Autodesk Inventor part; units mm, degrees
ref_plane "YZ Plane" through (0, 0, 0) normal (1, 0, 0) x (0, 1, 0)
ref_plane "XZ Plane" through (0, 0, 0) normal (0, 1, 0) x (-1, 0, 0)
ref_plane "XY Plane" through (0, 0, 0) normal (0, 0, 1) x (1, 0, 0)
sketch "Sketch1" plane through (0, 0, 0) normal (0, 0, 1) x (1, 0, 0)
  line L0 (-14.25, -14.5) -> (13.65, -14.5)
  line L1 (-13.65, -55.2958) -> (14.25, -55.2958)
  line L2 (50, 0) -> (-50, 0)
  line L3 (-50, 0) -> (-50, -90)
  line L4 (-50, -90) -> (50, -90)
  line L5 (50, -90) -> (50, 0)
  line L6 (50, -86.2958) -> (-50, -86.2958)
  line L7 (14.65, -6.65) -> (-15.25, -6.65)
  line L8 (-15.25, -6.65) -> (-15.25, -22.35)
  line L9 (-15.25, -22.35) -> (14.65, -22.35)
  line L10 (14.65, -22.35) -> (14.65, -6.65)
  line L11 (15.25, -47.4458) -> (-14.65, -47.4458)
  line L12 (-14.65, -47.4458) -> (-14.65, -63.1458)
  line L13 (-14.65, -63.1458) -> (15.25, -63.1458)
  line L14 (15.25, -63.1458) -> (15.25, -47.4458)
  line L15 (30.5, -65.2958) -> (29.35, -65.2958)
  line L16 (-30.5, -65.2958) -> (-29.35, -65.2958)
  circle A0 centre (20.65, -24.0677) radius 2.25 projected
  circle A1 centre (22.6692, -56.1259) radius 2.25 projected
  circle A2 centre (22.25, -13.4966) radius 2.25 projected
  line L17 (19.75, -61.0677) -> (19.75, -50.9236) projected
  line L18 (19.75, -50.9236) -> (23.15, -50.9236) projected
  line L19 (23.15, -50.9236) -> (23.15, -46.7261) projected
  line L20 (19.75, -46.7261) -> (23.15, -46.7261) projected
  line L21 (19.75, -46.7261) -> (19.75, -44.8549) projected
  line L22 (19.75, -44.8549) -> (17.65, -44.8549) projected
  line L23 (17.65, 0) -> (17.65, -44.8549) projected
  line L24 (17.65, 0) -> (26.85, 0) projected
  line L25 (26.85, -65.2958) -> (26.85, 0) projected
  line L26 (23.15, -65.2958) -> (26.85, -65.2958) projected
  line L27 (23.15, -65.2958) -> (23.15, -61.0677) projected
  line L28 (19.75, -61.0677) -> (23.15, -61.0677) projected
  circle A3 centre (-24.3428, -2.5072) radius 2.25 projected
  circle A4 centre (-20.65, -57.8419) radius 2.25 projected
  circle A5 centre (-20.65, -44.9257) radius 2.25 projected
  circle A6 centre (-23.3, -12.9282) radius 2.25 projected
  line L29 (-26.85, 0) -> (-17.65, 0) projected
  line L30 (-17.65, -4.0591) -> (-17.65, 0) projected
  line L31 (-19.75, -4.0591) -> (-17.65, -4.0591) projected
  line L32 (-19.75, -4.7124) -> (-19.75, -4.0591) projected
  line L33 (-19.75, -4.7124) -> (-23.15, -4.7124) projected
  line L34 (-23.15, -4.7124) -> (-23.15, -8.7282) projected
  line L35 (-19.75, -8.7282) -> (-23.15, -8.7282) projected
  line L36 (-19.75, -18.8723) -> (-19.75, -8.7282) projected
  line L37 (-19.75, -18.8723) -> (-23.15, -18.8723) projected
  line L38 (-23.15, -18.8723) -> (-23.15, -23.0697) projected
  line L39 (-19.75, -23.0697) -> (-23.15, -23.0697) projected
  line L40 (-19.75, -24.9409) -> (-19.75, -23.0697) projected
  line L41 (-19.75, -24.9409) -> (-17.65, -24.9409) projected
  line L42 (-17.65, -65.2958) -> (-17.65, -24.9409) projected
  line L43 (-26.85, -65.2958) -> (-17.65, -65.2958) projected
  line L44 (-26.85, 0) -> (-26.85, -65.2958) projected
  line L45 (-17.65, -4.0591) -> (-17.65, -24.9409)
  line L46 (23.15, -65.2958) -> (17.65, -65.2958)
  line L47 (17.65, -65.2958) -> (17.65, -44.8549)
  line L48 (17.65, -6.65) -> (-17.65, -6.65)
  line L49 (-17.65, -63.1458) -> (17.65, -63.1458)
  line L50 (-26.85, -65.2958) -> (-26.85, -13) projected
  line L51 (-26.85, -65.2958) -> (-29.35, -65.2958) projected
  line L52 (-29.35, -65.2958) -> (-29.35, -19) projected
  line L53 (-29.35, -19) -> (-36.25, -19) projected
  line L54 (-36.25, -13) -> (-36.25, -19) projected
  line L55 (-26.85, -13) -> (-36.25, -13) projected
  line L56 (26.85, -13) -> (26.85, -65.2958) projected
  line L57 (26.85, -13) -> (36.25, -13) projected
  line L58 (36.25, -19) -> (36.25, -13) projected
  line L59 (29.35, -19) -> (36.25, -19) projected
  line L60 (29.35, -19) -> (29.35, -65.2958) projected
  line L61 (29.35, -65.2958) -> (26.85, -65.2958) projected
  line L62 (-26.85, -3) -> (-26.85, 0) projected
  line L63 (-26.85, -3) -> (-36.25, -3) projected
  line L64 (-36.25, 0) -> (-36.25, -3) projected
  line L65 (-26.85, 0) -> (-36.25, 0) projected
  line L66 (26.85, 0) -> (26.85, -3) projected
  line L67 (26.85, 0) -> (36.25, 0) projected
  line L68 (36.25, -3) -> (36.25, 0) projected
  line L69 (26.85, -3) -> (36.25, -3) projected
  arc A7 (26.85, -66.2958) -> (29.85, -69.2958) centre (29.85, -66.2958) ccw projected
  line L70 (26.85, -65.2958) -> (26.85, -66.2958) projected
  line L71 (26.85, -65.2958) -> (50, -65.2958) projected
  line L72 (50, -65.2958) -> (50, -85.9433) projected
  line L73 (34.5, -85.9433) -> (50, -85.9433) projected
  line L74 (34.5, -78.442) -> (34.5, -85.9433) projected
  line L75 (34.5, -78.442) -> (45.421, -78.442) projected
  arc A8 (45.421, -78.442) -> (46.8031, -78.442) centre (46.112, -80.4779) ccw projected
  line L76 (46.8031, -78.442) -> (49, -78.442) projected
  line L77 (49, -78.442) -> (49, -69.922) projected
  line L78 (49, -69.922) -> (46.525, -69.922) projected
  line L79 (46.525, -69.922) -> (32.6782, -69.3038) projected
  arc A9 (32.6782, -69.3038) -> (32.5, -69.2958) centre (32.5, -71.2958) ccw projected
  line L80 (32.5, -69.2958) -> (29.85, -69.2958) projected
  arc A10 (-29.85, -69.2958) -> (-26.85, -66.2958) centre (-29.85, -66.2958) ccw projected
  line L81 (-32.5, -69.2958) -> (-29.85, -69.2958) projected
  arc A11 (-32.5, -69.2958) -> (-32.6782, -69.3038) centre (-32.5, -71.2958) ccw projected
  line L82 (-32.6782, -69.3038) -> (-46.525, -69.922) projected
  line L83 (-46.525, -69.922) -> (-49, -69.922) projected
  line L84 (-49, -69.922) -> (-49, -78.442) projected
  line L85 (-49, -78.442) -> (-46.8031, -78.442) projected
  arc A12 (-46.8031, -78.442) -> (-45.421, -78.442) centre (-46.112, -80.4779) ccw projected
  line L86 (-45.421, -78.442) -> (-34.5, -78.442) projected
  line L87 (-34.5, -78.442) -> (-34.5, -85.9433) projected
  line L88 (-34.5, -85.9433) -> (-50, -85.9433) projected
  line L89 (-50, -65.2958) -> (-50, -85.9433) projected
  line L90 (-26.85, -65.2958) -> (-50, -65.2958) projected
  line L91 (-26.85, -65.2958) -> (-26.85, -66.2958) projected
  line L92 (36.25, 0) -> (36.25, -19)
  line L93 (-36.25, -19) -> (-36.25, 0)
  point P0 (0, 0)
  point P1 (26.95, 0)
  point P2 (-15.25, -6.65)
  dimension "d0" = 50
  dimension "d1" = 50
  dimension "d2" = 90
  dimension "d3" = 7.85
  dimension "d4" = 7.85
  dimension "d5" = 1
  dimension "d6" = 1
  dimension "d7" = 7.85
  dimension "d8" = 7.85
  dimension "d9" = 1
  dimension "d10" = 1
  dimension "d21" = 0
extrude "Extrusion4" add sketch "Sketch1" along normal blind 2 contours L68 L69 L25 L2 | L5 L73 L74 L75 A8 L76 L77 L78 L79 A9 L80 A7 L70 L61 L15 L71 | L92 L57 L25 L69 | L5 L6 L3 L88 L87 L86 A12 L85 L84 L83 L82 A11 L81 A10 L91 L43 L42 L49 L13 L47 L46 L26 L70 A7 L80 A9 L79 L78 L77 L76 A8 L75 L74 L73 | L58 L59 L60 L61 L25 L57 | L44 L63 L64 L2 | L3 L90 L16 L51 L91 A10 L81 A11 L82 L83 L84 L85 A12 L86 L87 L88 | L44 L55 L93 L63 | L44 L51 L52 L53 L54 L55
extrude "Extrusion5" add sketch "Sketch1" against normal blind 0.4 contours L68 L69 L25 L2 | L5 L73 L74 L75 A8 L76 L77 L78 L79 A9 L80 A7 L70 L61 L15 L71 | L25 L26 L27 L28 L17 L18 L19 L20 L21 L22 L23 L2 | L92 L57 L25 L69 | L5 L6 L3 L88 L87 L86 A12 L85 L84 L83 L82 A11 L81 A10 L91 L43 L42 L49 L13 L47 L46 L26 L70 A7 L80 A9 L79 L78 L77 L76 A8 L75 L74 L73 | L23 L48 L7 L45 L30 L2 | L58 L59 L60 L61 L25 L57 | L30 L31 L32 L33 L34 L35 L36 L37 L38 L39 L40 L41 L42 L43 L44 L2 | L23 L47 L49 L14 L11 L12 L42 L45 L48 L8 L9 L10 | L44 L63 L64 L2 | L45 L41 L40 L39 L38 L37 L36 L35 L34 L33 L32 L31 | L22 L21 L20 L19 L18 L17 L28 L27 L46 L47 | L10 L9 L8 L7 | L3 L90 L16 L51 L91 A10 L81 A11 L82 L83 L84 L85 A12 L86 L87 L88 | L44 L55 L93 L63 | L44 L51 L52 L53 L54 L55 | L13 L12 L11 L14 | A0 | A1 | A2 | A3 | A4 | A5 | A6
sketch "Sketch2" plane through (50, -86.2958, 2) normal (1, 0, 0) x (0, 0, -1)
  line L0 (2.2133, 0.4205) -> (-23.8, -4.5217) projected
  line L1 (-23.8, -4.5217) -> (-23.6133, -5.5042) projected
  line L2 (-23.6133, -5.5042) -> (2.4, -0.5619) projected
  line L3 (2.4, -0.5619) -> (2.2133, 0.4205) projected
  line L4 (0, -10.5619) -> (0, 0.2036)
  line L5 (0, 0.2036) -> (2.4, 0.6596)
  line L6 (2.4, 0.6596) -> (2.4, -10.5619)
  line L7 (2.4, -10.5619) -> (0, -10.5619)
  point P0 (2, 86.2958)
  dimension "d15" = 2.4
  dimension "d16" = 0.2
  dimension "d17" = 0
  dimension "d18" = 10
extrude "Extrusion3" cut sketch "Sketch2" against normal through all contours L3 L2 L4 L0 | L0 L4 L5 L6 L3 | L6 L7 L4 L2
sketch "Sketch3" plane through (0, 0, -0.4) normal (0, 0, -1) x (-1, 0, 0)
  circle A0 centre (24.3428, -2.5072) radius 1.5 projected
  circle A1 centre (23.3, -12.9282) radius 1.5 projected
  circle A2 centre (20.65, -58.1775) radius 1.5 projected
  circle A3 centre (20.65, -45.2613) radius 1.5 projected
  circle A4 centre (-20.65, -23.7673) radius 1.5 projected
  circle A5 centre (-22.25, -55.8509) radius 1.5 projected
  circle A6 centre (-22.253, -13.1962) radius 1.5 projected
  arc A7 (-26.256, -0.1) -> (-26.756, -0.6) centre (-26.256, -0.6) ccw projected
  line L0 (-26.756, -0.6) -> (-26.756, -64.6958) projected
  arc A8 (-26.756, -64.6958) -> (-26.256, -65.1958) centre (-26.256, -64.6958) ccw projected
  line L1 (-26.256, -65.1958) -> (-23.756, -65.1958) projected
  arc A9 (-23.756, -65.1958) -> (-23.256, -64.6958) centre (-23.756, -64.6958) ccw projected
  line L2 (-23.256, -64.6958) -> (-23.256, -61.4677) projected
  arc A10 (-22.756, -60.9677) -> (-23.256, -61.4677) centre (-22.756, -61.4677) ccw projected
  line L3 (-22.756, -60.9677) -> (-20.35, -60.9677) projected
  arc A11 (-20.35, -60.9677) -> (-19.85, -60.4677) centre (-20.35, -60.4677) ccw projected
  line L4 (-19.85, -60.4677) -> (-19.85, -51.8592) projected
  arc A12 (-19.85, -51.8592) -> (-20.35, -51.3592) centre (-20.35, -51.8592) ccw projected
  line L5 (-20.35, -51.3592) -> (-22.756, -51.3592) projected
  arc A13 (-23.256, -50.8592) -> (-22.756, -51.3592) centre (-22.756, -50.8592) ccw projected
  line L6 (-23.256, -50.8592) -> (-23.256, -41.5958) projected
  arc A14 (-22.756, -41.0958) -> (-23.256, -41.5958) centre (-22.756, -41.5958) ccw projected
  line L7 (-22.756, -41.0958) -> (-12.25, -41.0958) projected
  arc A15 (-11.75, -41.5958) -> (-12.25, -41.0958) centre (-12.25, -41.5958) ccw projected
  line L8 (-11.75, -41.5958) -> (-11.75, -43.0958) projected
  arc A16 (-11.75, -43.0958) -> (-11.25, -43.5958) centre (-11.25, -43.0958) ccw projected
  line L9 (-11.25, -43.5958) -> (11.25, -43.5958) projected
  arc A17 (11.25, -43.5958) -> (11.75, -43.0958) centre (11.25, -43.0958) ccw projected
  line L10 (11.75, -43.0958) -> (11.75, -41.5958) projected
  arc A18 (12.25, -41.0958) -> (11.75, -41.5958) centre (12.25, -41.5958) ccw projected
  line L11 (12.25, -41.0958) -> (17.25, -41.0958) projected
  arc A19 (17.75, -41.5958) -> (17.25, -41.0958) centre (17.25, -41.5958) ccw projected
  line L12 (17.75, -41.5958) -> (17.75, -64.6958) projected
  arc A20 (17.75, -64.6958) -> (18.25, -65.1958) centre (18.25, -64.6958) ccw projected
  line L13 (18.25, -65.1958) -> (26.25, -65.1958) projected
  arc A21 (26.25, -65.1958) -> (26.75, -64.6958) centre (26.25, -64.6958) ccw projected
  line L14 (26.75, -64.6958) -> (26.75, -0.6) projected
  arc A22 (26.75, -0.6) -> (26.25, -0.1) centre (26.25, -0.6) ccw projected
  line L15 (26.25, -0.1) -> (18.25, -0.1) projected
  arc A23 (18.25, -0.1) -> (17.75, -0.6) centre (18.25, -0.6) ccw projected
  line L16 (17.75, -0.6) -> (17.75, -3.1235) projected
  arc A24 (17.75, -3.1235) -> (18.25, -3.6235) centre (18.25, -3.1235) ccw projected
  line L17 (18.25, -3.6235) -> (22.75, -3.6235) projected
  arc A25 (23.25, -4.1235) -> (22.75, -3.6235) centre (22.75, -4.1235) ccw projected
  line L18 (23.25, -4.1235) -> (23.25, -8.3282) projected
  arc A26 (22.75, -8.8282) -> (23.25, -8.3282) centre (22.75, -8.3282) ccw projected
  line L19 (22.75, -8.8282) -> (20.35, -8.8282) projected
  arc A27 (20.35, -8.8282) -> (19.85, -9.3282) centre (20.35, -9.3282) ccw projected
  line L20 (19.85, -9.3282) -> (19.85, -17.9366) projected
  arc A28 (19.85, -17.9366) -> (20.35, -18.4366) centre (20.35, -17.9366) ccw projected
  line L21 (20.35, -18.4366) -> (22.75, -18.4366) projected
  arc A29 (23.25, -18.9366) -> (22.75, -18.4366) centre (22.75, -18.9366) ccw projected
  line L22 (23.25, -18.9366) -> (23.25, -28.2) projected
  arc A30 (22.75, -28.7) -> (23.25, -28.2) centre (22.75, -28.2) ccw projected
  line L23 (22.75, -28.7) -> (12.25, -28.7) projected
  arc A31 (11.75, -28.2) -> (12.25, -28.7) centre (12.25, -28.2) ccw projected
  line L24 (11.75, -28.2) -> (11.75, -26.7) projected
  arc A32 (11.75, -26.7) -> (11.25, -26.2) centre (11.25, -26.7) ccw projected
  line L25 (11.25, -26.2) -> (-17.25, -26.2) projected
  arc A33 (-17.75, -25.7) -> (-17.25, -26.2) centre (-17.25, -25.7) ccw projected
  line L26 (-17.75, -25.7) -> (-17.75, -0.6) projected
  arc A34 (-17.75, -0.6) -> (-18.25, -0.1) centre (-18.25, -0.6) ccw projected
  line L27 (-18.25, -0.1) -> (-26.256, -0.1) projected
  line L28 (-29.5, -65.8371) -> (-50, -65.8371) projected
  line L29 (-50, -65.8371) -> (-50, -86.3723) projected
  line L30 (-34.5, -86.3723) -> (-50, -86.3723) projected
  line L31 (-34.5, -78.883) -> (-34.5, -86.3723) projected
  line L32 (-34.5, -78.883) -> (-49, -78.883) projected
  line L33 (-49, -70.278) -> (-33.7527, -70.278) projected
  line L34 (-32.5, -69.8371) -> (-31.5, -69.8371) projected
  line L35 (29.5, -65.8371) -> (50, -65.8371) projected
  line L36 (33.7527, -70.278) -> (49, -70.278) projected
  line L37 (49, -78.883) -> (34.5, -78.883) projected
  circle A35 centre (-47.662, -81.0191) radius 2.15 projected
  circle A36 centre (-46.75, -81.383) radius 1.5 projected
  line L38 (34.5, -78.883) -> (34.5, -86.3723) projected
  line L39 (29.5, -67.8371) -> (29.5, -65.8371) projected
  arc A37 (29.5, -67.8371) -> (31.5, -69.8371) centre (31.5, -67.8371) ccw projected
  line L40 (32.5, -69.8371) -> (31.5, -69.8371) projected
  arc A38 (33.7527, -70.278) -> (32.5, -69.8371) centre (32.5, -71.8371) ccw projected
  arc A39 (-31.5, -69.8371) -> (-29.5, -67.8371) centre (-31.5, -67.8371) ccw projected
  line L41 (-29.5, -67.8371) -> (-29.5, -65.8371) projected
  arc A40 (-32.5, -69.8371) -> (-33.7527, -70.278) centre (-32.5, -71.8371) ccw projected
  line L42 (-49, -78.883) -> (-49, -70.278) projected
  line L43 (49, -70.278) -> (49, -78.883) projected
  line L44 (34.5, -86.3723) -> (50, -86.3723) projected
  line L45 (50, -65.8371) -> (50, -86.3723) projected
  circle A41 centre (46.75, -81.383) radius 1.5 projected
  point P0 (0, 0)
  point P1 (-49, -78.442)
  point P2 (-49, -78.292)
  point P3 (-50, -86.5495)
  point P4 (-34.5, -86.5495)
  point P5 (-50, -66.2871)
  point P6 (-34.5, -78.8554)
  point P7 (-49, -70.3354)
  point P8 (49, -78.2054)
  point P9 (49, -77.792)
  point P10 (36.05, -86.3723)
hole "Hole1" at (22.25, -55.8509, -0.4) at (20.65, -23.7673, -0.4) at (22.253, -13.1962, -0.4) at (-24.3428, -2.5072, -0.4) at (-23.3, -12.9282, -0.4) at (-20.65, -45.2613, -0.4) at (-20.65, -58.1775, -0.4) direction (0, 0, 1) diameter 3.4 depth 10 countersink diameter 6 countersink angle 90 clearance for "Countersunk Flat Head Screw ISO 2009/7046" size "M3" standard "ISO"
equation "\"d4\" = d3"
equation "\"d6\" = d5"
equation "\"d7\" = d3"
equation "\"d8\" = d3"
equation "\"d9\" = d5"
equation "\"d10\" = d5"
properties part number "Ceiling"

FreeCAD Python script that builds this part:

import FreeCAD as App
import Part
import Sketcher
from FreeCAD import Vector


def add_polygon(sketch, points):
    """Adds a closed chain of lines whose ends are joined by coincident constraints."""
    first, n = sketch.GeometryCount, len(points)
    for a, b in zip(points, points[1:] + points[:1]):
        sketch.addGeometry(Part.LineSegment(App.Vector(*a, 0), App.Vector(*b, 0)), False)
    for i in range(n):
        sketch.addConstraint(Sketcher.Constraint("Coincident", first + i, 2, first + (i + 1) % n, 1))

doc = App.newDocument("Part")
params = doc.addObject("Spreadsheet::Sheet", "Params")
for row, (alias, value) in enumerate([
    ("sketch1_height", "19 mm"),
    ("sketch1_height2", "21 mm"),
    ("sketch1_width", "9.4 mm"),
    ("sketch1_width2", "9.2 mm"),
    ("sketch1_width3", "35.3 mm"),
    ("pad1_length", "2 mm"),
    ("sketch2_height", "19 mm"),
    ("sketch2_height2", "21 mm"),
    ("sketch2_width", "72.5 mm"),
    ("sketch2_width2", "6.9 mm"),
    ("pad2_length", "0.4 mm"),
    ("sketch3_height", "2.4 mm"),
    ("sketch4_diameter", "3.4 mm"),
    ("hole_diameter", "3.4 mm"),
    ("hole_depth", "10 mm"),
    ("hole_csink_diameter", "6 mm"),
], start=1):
    params.set(f"A{row}", alias)
    params.set(f"B{row}", "=" + value)
    params.setAlias(f"B{row}", alias)

body = doc.addObject("PartDesign::Body", "Body")

# Sketch on XY plane
sketch1 = body.newObject("Sketcher::SketchObject", "Sketch")
sketch1.AttachmentSupport = (doc.getObject("XY_Plane"), [""])
sketch1.MapMode = "FlatFace"
add_polygon(sketch1, [(36.25, 0), (26.85, 0), (26.85, -65.2958), (17.65, -65.2958), (17.65, -63.1458), (-17.65, -63.1458), (-17.65, -65.2958), (-26.85, -65.2958), (-26.85, 0), (-36.25, 0), (-36.25, -19), (-29.35, -19), (-29.35, -65.2958), (-50, -65.2958), (-50, -86.2958), (50, -86.2958), (50, -65.2958), (29.35, -65.2958), (29.35, -19), (36.25, -19)])  # lines 0-19
sketch1.addConstraint([
    Sketcher.Constraint("Horizontal", 0),
    Sketcher.Constraint("Vertical", 1),
    Sketcher.Constraint("Horizontal", 2),
    Sketcher.Constraint("Vertical", 3),
    Sketcher.Constraint("Horizontal", 4),
    Sketcher.Constraint("Vertical", 5),
    Sketcher.Constraint("Horizontal", 6),
    Sketcher.Constraint("Vertical", 7),
    Sketcher.Constraint("Horizontal", 8),
    Sketcher.Constraint("Vertical", 9),
    Sketcher.Constraint("Horizontal", 10),
    Sketcher.Constraint("Vertical", 11),
    Sketcher.Constraint("Horizontal", 12),
    Sketcher.Constraint("Vertical", 13),
    Sketcher.Constraint("Horizontal", 14),
    Sketcher.Constraint("Vertical", 15),
    Sketcher.Constraint("Horizontal", 16),
    Sketcher.Constraint("Vertical", 17),
    Sketcher.Constraint("Horizontal", 18),
    Sketcher.Constraint("Vertical", 19),
    Sketcher.Constraint("Symmetric", 0, 2, 7, 2, -1, 1),
    Sketcher.Constraint("Symmetric", 2, 2, 5, 2, -2),
    Sketcher.Constraint("Symmetric", 12, 2, 15, 2, -2),
    Sketcher.Constraint("Symmetric", 10, 2, 17, 2, -2),
    Sketcher.Constraint("Symmetric", 8, 2, 19, 2, -2),
    Sketcher.Constraint("Horizontal", 6, 2, 11, 2),
    Sketcher.Constraint("DistanceX", 12, 2, -1, 1, 50.0),
    Sketcher.Constraint("DistanceY", 9, 2, 9, 1, 19.0),
    Sketcher.Constraint("DistanceY", 13, 2, 13, 1, 21.0),
    Sketcher.Constraint("DistanceX", 0, 2, 0, 1, 9.4),
    Sketcher.Constraint("DistanceX", 2, 2, 2, 1, 9.2),
    Sketcher.Constraint("DistanceX", 4, 2, 4, 1, 35.3),
    Sketcher.Constraint("DistanceX", 10, 1, 10, 2, 6.9),
    Sketcher.Constraint("DistanceY", 3, 1, 3, 2, 2.15),
    Sketcher.Constraint("DistanceY", 1, 2, 1, 1, 65.2958),
])
sketch1.setExpression("Constraints[47]", "Params.sketch1_height")
sketch1.setExpression("Constraints[48]", "Params.sketch1_height2")
sketch1.setExpression("Constraints[49]", "Params.sketch1_width")
sketch1.setExpression("Constraints[50]", "Params.sketch1_width2")
sketch1.setExpression("Constraints[51]", "Params.sketch1_width3")
pad1 = body.newObject("PartDesign::Pad", "Pad")
pad1.Profile = sketch1
pad1.setExpression("Length", "Params.pad1_length")

# Sketch on XY plane
sketch2 = body.newObject("Sketcher::SketchObject", "Sketch001")
sketch2.AttachmentSupport = (doc.getObject("XY_Plane"), [""])
sketch2.MapMode = "FlatFace"
add_polygon(sketch2, [(36.25, 0), (-36.25, 0), (-36.25, -19), (-29.35, -19), (-29.35, -65.2958), (-50, -65.2958), (-50, -86.2958), (50, -86.2958), (50, -65.2958), (29.35, -65.2958), (29.35, -19), (36.25, -19)])  # lines 0-11
sketch2.addConstraint([
    Sketcher.Constraint("Horizontal", 0),
    Sketcher.Constraint("Vertical", 1),
    Sketcher.Constraint("Horizontal", 2),
    Sketcher.Constraint("Vertical", 3),
    Sketcher.Constraint("Horizontal", 4),
    Sketcher.Constraint("Vertical", 5),
    Sketcher.Constraint("Horizontal", 6),
    Sketcher.Constraint("Vertical", 7),
    Sketcher.Constraint("Horizontal", 8),
    Sketcher.Constraint("Vertical", 9),
    Sketcher.Constraint("Horizontal", 10),
    Sketcher.Constraint("Vertical", 11),
    Sketcher.Constraint("Symmetric", 0, 2, 11, 2, -1, 1),
    Sketcher.Constraint("Symmetric", 4, 2, 7, 2, -2),
    Sketcher.Constraint("Symmetric", 2, 2, 9, 2, -2),
    Sketcher.Constraint("DistanceX", 4, 2, -1, 1, 50.0),
    Sketcher.Constraint("DistanceY", 1, 2, 1, 1, 19.0),
    Sketcher.Constraint("DistanceY", 5, 2, 5, 1, 21.0),
    Sketcher.Constraint("DistanceX", 0, 2, 0, 1, 72.5),
    Sketcher.Constraint("DistanceX", 2, 1, 2, 2, 6.9),
    Sketcher.Constraint("DistanceY", 3, 2, 3, 1, 46.2958),
])
sketch2.setExpression("Constraints[28]", "Params.sketch2_height")
sketch2.setExpression("Constraints[29]", "Params.sketch2_height2")
sketch2.setExpression("Constraints[30]", "Params.sketch2_width")
sketch2.setExpression("Constraints[31]", "Params.sketch2_width2")
pad2 = body.newObject("PartDesign::Pad", "Pad001")
pad2.Profile = sketch2
pad2.setExpression("Length", "Params.pad2_length")
pad2.Reversed = True

# Sketch on YZ plane
sketch3 = body.newObject("Sketcher::SketchObject", "Sketch002")
sketch3.AttachmentSupport = (doc.getObject("YZ_Plane"), [""])
sketch3.MapMode = "FlatFace"
sketch3.AttachmentOffset = App.Placement(Vector(0, 0, 50), App.Rotation())
add_polygon(sketch3, [(-96.8577, 2), (-96.8577, -0.4), (-85.6362, -0.4), (-86.0922, 2)])  # lines 0-3
sketch3.addConstraint([
    Sketcher.Constraint("Vertical", 0),
    Sketcher.Constraint("Horizontal", 1),
    Sketcher.Constraint("Horizontal", 3),
    Sketcher.Constraint("DistanceY", 0, 2, 0, 1, 2.4),
    Sketcher.Constraint("DistanceY", -1, 1, 2, 2, 2.0),
    Sketcher.Constraint("Distance", 2, 2.443),
    Sketcher.Constraint("DistanceX", 1, 1, 1, 2, 11.2215),
    Sketcher.Constraint("DistanceX", 0, 2, -1, 1, 96.8577),
])
sketch3.setExpression("Constraints[7]", "Params.sketch3_height")
pocket1 = body.newObject("PartDesign::Pocket", "Pocket")
pocket1.Profile = sketch3
pocket1.Type = "ThroughAll"

# Sketch on XY plane
sketch4 = body.newObject("Sketcher::SketchObject", "Sketch003")
sketch4.AttachmentSupport = (doc.getObject("XY_Plane"), [""])
sketch4.MapMode = "FlatFace"
sketch4.AttachmentOffset = App.Placement(Vector(0, 0, -0.4), App.Rotation())
sketch4.addGeometry([
    Part.Circle(Vector(22.25, -55.8509, 0), Vector(0, 0, 1), 1.7),  # 0
    Part.Circle(Vector(20.65, -23.7673, 0), Vector(0, 0, 1), 1.7),  # 1
    Part.Circle(Vector(22.253, -13.1962, 0), Vector(0, 0, 1), 1.7),  # 2
    Part.Circle(Vector(-24.3428, -2.5072, 0), Vector(0, 0, 1), 1.7),  # 3
    Part.Circle(Vector(-23.3, -12.9282, 0), Vector(0, 0, 1), 1.7),  # 4
    Part.Circle(Vector(-20.65, -45.2613, 0), Vector(0, 0, 1), 1.7),  # 5
    Part.Circle(Vector(-20.65, -58.1775, 0), Vector(0, 0, 1), 1.7),  # 6
], False)
sketch4.addConstraint([
    Sketcher.Constraint("Equal", 0, 1),
    Sketcher.Constraint("Equal", 1, 2),
    Sketcher.Constraint("Equal", 2, 3),
    Sketcher.Constraint("Equal", 3, 4),
    Sketcher.Constraint("Equal", 4, 5),
    Sketcher.Constraint("Equal", 5, 6),
    Sketcher.Constraint("Vertical", 5, 3, 6, 3),
    Sketcher.Constraint("Diameter", 0, 3.4),
    Sketcher.Constraint("DistanceX", 4, 3, -1, 1, 23.3),
    Sketcher.Constraint("DistanceX", 1, 3, 0, 3, 1.6),
    Sketcher.Constraint("DistanceX", 5, 3, 0, 3, 42.9),
    Sketcher.Constraint("DistanceX", -1, 1, 0, 3, 22.25),
    Sketcher.Constraint("DistanceY", 1, 3, 3, 3, 21.26),
    Sketcher.Constraint("DistanceY", 0, 3, -1, 1, 55.851),
    Sketcher.Constraint("DistanceX", -1, 1, 2, 3, 22.253),
    Sketcher.Constraint("DistanceY", 1, 3, 2, 3, 10.571),
    Sketcher.Constraint("DistanceY", 4, 3, 3, 3, 10.421),
    Sketcher.Constraint("DistanceY", 5, 3, 4, 3, 32.333),
    Sketcher.Constraint("DistanceY", 1, 3, -1, 1, 23.7673),
    Sketcher.Constraint("DistanceX", 3, 3, -1, 1, 24.3428),
    Sketcher.Constraint("DistanceY", 6, 3, -1, 1, 58.1775),
])
sketch4.setExpression("Constraints[7]", "Params.sketch4_diameter")
doc.recompute()
hole = body.newObject("PartDesign::Hole", "Hole")
hole.Profile = sketch4
hole.ThreadType = "None"
hole.setExpression("Diameter", "Params.hole_diameter")
hole.DepthType = "Dimension"
hole.setExpression("Depth", "Params.hole_depth")
hole.DrillPoint = "Flat"
hole.HoleCutType = "Countersink"
hole.setExpression("HoleCutDiameter", "Params.hole_csink_diameter")
hole.HoleCutCountersinkAngle = 90
hole.Reversed = True

doc.recompute()
